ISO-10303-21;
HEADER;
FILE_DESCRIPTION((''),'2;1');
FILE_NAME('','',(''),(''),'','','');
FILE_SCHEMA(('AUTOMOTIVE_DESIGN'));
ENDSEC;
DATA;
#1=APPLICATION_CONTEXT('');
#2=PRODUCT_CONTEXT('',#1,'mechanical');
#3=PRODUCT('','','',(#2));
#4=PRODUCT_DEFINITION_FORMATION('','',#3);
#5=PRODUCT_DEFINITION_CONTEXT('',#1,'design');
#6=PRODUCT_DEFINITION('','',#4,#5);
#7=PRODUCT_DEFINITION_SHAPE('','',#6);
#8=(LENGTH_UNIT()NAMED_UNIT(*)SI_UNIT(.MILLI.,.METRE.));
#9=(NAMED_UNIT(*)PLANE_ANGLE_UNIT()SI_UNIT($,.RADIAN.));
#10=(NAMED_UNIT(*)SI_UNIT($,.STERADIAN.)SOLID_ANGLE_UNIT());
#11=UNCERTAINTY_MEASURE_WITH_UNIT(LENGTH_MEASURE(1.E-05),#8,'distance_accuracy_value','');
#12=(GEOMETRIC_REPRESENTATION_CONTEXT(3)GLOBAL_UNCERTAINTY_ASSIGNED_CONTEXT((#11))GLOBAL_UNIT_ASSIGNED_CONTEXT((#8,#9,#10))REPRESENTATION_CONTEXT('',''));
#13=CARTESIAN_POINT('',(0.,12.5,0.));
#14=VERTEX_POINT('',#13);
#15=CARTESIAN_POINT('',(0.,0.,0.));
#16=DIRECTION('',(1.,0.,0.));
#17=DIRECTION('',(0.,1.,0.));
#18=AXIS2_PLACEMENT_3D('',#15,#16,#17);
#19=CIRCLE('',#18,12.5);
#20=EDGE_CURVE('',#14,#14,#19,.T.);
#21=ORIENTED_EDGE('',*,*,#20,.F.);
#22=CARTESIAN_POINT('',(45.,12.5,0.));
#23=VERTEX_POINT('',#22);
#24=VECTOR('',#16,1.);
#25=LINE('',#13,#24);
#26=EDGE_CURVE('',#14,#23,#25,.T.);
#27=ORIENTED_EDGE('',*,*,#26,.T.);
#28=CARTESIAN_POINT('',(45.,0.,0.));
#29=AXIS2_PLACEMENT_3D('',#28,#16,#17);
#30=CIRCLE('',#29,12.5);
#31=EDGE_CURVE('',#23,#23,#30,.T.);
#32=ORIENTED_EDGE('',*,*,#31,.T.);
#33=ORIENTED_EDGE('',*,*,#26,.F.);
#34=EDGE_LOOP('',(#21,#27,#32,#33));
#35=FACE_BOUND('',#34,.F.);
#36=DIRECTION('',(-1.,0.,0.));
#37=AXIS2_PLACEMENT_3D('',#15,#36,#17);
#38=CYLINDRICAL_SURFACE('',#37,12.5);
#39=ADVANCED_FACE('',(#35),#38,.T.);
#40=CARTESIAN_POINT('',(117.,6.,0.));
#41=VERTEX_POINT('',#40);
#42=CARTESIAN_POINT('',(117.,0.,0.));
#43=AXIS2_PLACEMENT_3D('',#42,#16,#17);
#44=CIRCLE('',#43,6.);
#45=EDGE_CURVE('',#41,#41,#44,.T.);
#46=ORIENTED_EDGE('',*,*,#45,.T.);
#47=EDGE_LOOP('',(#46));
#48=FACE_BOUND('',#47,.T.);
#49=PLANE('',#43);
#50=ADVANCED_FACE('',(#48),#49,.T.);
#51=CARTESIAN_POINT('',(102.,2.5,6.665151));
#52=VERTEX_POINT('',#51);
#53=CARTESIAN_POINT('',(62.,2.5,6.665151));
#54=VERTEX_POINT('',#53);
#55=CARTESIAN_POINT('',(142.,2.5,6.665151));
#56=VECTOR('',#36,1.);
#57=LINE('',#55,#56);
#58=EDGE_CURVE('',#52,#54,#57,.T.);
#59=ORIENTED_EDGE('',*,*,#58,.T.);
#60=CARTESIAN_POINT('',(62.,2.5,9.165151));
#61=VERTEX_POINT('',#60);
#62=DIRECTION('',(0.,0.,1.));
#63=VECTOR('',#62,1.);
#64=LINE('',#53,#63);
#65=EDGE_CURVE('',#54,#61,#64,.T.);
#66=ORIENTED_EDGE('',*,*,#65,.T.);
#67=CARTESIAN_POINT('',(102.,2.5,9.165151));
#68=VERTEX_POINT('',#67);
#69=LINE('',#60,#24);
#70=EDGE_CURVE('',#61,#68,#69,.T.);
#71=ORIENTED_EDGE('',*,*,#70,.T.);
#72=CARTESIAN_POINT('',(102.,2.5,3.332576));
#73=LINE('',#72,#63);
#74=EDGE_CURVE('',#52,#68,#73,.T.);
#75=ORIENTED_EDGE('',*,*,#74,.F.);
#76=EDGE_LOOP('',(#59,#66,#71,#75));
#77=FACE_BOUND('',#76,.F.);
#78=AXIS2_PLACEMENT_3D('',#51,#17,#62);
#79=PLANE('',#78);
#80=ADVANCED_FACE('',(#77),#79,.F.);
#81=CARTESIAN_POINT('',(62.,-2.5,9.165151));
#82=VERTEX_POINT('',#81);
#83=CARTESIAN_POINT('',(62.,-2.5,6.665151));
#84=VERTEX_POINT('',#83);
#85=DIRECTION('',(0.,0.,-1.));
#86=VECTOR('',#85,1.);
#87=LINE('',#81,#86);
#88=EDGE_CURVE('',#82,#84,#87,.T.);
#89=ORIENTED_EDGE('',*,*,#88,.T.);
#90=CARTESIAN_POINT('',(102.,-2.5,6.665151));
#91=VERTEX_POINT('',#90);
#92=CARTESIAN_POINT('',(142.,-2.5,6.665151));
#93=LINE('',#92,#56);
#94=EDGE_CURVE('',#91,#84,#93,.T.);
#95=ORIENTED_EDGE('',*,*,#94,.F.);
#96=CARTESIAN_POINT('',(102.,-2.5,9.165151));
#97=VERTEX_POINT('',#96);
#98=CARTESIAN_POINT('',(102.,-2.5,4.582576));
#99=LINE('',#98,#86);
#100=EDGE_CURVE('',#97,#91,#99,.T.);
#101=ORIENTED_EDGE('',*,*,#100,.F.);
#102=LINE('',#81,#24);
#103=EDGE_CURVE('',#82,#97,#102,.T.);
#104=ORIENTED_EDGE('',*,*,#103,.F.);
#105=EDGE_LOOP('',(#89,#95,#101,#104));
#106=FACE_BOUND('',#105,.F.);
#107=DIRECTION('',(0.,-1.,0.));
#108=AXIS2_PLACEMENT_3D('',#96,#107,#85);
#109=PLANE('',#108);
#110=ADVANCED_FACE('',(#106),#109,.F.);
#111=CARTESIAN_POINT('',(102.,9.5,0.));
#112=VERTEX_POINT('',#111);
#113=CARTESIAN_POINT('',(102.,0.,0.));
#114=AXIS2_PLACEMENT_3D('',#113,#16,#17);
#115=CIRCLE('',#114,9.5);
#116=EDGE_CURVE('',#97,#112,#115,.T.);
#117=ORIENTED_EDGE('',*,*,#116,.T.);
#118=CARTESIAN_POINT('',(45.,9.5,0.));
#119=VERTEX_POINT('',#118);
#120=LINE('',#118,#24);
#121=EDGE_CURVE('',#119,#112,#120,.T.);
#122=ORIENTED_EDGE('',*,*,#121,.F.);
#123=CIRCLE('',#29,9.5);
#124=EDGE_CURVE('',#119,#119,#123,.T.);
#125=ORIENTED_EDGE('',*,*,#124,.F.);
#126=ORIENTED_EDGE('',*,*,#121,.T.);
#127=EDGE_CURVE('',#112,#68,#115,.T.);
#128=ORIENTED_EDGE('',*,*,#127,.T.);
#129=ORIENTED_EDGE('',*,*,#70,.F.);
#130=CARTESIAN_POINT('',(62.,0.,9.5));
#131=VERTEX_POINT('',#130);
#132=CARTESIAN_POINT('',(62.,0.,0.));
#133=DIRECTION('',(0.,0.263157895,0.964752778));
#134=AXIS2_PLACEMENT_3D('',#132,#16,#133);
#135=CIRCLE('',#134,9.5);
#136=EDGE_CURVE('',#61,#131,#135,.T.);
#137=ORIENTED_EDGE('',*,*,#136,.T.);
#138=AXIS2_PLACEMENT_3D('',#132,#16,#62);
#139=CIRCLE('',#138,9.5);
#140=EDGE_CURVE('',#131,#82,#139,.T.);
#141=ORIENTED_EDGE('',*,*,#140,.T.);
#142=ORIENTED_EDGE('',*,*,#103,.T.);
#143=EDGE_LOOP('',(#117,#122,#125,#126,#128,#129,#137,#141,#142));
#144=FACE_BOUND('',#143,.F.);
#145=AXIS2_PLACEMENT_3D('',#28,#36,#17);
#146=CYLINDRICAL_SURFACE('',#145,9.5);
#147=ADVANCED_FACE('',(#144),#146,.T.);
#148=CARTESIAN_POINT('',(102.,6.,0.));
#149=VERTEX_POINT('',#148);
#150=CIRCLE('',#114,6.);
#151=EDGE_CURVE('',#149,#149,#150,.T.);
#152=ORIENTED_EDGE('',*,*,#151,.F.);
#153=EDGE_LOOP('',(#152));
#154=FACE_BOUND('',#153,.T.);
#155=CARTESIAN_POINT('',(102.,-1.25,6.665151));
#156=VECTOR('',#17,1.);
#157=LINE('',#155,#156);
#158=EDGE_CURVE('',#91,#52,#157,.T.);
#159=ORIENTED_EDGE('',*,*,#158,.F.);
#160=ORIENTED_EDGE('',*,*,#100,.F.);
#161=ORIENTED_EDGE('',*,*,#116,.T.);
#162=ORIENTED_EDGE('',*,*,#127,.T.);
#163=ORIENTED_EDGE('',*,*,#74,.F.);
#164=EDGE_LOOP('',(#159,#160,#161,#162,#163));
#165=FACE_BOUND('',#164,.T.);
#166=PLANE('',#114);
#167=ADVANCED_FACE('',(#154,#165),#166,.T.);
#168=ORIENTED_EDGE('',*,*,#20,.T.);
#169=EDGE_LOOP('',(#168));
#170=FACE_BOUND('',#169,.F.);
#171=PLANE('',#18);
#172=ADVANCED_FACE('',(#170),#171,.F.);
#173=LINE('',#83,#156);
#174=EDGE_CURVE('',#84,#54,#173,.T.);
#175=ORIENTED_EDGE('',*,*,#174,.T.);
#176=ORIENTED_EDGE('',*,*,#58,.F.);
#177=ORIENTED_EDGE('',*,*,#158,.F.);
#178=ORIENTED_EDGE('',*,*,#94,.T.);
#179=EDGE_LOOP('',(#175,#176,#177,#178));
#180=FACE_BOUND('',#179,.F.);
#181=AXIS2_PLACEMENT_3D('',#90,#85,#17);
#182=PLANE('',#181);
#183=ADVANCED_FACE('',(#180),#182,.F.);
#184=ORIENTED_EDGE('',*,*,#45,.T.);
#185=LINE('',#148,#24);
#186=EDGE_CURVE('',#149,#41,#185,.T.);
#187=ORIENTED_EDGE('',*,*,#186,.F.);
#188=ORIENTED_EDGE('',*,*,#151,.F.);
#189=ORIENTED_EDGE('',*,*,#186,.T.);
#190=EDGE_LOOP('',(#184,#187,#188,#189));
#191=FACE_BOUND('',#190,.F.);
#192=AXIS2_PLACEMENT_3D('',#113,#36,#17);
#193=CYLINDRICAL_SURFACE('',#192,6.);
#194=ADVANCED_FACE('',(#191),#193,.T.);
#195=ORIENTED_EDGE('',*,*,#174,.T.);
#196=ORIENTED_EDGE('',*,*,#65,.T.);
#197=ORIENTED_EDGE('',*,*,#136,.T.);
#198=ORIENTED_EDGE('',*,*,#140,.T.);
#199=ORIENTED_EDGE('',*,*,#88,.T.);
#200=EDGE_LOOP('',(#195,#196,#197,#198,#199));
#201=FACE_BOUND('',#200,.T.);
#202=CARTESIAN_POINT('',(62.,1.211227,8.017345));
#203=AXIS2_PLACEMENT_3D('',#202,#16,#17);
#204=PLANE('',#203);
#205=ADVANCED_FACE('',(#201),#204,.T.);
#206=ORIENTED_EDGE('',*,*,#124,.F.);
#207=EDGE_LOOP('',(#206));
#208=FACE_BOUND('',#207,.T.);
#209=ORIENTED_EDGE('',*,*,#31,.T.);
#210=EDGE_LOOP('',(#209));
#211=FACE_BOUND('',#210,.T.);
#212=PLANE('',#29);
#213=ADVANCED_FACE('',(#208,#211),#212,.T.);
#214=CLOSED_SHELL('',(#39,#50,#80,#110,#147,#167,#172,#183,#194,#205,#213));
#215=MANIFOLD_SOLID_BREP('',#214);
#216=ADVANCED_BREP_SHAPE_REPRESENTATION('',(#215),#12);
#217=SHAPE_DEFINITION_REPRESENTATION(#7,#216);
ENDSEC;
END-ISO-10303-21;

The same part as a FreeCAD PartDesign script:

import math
import FreeCAD as App
import Part
import Sketcher

doc = App.newDocument("Part")
params = doc.addObject("Spreadsheet::Sheet", "Params")
for row, (alias, value) in enumerate([
    ("sketch1_diameter", "25 mm"),
    ("pad1_length", "45 mm"),
    ("sketch2_diameter", "19 mm"),
    ("pad2_length", "57 mm"),
    ("sketch3_diameter", "12 mm"),
    ("pad3_length", "15 mm"),
    ("sketch4_radius", "9.5 mm"),
    ("sketch4_width", "5 mm"),
    ("sketch4_height", "2.5 mm"),
    ("pocket1_length", "80 mm"),
], start=1):
    params.set(f"A{row}", alias)
    params.set(f"B{row}", "=" + value)
    params.setAlias(f"B{row}", alias)

body = doc.addObject("PartDesign::Body", "Body")

# Sketch on YZ plane
sketch1 = body.newObject("Sketcher::SketchObject", "Sketch")
sketch1.AttachmentSupport = (doc.getObject("YZ_Plane"), [""])
sketch1.MapMode = "FlatFace"
sketch1.addGeometry(Part.Circle(App.Vector(0, 0, 0), App.Vector(0, 0, 1), 12), False)
sketch1.addConstraint([
    Sketcher.Constraint("Coincident", 0, 3, -1, 1),
    Sketcher.Constraint("Diameter", 0, 25.0),
])
sketch1.setExpression("Constraints[1]", "Params.sketch1_diameter")
pad1 = body.newObject("PartDesign::Pad", "Pad")
pad1.Profile = sketch1
pad1.setExpression("Length", "Params.pad1_length")

# Sketch on YZ plane
sketch2 = body.newObject("Sketcher::SketchObject", "Sketch001")
sketch2.AttachmentSupport = (doc.getObject("YZ_Plane"), [""])
sketch2.MapMode = "FlatFace"
sketch2.AttachmentOffset = App.Placement(App.Vector(0, 0, 45), App.Rotation())
sketch2.addGeometry(Part.Circle(App.Vector(0, 0, 0), App.Vector(0, 0, 1), 10), False)
sketch2.addConstraint([
    Sketcher.Constraint("Coincident", 0, 3, -1, 1),
    Sketcher.Constraint("Diameter", 0, 19.0),
])
sketch2.setExpression("Constraints[1]", "Params.sketch2_diameter")
pad2 = body.newObject("PartDesign::Pad", "Pad001")
pad2.Profile = sketch2
pad2.setExpression("Length", "Params.pad2_length")

# Sketch on YZ plane
sketch3 = body.newObject("Sketcher::SketchObject", "Sketch002")
sketch3.AttachmentSupport = (doc.getObject("YZ_Plane"), [""])
sketch3.MapMode = "FlatFace"
sketch3.AttachmentOffset = App.Placement(App.Vector(0, 0, 102), App.Rotation())
sketch3.addGeometry(Part.Circle(App.Vector(0, 0, 0), App.Vector(0, 0, 1), 6), False)
sketch3.addConstraint([
    Sketcher.Constraint("Coincident", 0, 3, -1, 1),
    Sketcher.Constraint("Diameter", 0, 12.0),
])
sketch3.setExpression("Constraints[1]", "Params.sketch3_diameter")
pad3 = body.newObject("PartDesign::Pad", "Pad002")
pad3.Profile = sketch3
pad3.setExpression("Length", "Params.pad3_length")

# Sketch on YZ plane
sketch4 = body.newObject("Sketcher::SketchObject", "Sketch003")
sketch4.AttachmentSupport = (doc.getObject("YZ_Plane"), [""])
sketch4.MapMode = "FlatFace"
sketch4.AttachmentOffset = App.Placement(App.Vector(0, 0, 102), App.Rotation())
sketch4.addGeometry([
    Part.LineSegment(App.Vector(2.5, 6.7, 0), App.Vector(2.5, 9.2, 0)),  # 0
    Part.ArcOfCircle(Part.Circle(App.Vector(0, 0, 0), App.Vector(0, 0, 1), 9.5), math.radians(74.74), math.radians(90)),  # 1
    Part.ArcOfCircle(Part.Circle(App.Vector(0, 0, 0), App.Vector(0, 0, 1), 9.5), math.radians(90), math.radians(105.26)),  # 2
    Part.LineSegment(App.Vector(-2.5, 9.2, 0), App.Vector(-2.5, 6.7, 0)),  # 3
    Part.LineSegment(App.Vector(-2.5, 6.7, 0), App.Vector(2.5, 6.7, 0)),  # 4
], False)
sketch4.addConstraint([
    Sketcher.Constraint("Coincident", 0, 2, 1, 1),
    Sketcher.Constraint("Tangent", 1, 2, 2, 1),
    Sketcher.Constraint("Coincident", 2, 2, 3, 1),
    Sketcher.Constraint("Coincident", 3, 2, 4, 1),
    Sketcher.Constraint("Coincident", 4, 2, 0, 1),
    Sketcher.Constraint("Vertical", 0),
    Sketcher.Constraint("Vertical", 3),
    Sketcher.Constraint("Horizontal", 4),
    Sketcher.Constraint("Coincident", 1, 3, -1, 1),
    Sketcher.Constraint("Equal", 1, 2),
    Sketcher.Constraint("PointOnObject", 1, 2, -2),
    Sketcher.Constraint("Horizontal", 0, 2, 2, 2),
    Sketcher.Constraint("Radius", 1, 9.5),
    Sketcher.Constraint("DistanceX", 4, 1, 4, 2, 5.0),
    Sketcher.Constraint("DistanceY", 0, 1, 0, 2, 2.5),
])
sketch4.setExpression("Constraints[12]", "Params.sketch4_radius")
sketch4.setExpression("Constraints[13]", "Params.sketch4_width")
sketch4.setExpression("Constraints[14]", "Params.sketch4_height")
pocket1 = body.newObject("PartDesign::Pocket", "Pocket")
pocket1.Profile = sketch4
pocket1.setExpression("Length", "Params.pocket1_length")
pocket1.Midplane = True

doc.recompute()
